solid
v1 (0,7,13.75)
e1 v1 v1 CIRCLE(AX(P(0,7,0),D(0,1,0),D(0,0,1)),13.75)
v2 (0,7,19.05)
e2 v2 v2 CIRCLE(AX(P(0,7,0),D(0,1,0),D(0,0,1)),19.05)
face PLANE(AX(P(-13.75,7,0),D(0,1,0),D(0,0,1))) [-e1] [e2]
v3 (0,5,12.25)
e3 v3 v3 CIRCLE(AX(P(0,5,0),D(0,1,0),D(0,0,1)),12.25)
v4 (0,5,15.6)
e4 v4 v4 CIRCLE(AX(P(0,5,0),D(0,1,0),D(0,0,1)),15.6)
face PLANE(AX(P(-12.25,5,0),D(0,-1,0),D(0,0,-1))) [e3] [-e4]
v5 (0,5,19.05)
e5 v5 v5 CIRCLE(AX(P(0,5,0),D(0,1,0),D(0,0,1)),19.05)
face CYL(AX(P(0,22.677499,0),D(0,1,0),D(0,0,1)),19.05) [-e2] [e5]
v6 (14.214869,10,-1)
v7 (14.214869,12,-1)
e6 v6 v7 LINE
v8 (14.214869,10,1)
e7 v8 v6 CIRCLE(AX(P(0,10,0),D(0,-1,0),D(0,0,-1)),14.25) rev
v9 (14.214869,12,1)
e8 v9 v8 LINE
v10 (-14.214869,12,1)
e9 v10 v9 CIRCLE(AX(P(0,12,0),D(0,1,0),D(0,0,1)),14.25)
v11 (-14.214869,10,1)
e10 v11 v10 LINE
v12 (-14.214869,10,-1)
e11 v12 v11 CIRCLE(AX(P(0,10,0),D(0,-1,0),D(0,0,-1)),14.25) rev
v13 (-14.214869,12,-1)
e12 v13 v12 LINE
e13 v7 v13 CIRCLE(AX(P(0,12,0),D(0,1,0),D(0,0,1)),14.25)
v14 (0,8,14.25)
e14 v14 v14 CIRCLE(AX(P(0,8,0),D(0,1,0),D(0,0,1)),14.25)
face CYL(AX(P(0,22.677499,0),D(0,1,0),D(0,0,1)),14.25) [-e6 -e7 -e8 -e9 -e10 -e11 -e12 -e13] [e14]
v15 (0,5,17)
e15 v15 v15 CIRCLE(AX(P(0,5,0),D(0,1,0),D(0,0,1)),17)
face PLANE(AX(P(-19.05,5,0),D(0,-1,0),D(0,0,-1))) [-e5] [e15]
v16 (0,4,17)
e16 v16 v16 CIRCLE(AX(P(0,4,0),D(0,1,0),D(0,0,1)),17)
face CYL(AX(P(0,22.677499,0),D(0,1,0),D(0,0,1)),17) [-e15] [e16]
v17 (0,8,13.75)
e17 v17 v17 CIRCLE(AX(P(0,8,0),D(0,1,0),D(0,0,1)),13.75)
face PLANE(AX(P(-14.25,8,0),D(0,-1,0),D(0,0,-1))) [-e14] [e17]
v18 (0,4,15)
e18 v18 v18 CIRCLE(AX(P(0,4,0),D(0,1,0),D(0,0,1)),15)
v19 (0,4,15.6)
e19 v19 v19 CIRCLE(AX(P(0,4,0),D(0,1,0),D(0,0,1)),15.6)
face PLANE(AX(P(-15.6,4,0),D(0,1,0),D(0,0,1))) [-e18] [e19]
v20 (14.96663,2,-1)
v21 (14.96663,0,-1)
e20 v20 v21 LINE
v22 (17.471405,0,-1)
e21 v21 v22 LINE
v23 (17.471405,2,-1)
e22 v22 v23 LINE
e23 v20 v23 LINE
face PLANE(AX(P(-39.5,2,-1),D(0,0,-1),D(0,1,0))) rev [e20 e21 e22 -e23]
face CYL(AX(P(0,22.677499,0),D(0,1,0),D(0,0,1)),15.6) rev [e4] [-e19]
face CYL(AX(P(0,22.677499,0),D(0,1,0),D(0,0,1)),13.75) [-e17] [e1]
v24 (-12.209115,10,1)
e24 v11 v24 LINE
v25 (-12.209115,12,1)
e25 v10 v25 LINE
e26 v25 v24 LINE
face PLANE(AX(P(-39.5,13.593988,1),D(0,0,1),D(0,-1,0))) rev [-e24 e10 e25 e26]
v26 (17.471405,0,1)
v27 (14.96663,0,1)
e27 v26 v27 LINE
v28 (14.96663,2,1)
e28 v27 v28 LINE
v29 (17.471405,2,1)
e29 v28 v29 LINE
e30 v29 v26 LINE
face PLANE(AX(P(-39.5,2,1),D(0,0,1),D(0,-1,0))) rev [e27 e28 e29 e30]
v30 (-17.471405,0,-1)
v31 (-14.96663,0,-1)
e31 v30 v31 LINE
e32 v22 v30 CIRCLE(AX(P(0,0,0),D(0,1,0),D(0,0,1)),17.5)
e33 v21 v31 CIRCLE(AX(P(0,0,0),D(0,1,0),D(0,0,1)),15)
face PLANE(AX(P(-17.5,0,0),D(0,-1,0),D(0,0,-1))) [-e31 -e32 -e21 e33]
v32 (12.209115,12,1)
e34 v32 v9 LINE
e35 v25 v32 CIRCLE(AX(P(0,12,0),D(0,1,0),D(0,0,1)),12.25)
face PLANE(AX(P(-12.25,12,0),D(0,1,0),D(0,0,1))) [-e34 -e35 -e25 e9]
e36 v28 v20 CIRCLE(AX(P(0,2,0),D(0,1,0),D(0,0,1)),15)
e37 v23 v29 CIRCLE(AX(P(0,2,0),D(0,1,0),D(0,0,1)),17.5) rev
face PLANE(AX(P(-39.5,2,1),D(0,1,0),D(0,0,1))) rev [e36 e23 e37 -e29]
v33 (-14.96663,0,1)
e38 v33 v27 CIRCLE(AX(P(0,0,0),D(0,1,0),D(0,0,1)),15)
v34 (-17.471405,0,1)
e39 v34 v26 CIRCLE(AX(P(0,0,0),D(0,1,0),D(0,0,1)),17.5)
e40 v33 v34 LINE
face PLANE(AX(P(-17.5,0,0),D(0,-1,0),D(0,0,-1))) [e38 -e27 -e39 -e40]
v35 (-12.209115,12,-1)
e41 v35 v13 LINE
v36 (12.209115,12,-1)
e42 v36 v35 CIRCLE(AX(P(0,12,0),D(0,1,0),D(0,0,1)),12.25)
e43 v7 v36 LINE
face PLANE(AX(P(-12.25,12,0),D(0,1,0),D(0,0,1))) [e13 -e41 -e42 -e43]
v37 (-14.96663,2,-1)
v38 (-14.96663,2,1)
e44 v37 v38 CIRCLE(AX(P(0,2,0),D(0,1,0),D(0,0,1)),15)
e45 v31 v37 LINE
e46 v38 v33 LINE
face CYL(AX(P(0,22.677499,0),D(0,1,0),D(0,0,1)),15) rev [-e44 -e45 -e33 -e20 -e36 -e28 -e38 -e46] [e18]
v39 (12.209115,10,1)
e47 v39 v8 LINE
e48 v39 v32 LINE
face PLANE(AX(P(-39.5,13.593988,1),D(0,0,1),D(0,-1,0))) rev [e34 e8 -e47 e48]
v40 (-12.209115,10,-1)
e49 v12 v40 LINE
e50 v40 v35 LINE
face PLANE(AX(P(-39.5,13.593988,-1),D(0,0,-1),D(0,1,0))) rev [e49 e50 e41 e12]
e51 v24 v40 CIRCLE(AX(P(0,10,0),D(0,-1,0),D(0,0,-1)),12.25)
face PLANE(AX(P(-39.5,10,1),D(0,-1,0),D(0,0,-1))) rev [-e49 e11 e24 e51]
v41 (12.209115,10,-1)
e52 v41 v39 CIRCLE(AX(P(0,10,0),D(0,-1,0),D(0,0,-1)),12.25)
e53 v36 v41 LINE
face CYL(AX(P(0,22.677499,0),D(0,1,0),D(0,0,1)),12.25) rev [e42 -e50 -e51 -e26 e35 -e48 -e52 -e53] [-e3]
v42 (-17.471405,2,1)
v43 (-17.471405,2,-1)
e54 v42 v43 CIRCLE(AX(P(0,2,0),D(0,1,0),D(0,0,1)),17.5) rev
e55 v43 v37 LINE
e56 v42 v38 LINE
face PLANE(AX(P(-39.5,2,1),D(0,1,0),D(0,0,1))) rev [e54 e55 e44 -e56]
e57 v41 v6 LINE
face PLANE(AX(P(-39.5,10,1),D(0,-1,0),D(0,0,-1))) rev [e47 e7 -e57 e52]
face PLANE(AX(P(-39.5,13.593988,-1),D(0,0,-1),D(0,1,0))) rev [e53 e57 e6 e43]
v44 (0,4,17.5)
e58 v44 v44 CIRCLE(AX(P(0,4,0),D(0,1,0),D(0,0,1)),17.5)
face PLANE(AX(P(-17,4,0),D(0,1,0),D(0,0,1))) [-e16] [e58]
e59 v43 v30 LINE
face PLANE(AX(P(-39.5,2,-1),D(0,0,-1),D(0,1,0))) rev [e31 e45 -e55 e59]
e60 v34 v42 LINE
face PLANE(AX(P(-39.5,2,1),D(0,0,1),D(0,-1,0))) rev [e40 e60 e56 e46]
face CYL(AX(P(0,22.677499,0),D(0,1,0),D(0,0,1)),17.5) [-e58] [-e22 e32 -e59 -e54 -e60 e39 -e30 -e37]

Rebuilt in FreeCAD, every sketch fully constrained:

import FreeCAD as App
import Part
import Sketcher
from FreeCAD import Vector

doc = App.newDocument("Part")
body = doc.addObject("PartDesign::Body", "Body")

# Sketch on XY plane
sketch1 = body.newObject("Sketcher::SketchObject", "Sketch")
sketch1.AttachmentSupport = (doc.getObject("XY_Plane"), [""])
sketch1.MapMode = "FlatFace"
sketch1.addGeometry(Part.LineSegment(Vector(-12.25, 12, 0), Vector(-14.25, 12, 0)), False)
sketch1.addGeometry(Part.LineSegment(Vector(-14.25, 12, 0), Vector(-14.25, 8, 0)), False)
sketch1.addGeometry(Part.LineSegment(Vector(-14.25, 8, 0), Vector(-13.75, 8, 0)), False)
sketch1.addGeometry(Part.LineSegment(Vector(-13.75, 8, 0), Vector(-13.75, 7, 0)), False)
sketch1.addGeometry(Part.LineSegment(Vector(-13.75, 7, 0), Vector(-19.05, 7, 0)), False)
sketch1.addGeometry(Part.LineSegment(Vector(-19.05, 7, 0), Vector(-19.05, 5, 0)), False)
sketch1.addGeometry(Part.LineSegment(Vector(-19.05, 5, 0), Vector(-17, 5, 0)), False)
sketch1.addGeometry(Part.LineSegment(Vector(-17, 5, 0), Vector(-17, 4, 0)), False)
sketch1.addGeometry(Part.LineSegment(Vector(-17, 4, 0), Vector(-17.5, 4, 0)), False)
sketch1.addGeometry(Part.LineSegment(Vector(-17.5, 4, 0), Vector(-17.5, 0, 0)), False)
sketch1.addGeometry(Part.LineSegment(Vector(-17.5, 0, 0), Vector(-15, 0, 0)), False)
sketch1.addGeometry(Part.LineSegment(Vector(-15, 0, 0), Vector(-15, 4, 0)), False)
sketch1.addGeometry(Part.LineSegment(Vector(-15, 4, 0), Vector(-15.6, 4, 0)), False)
sketch1.addGeometry(Part.LineSegment(Vector(-15.6, 4, 0), Vector(-15.6, 5, 0)), False)
sketch1.addGeometry(Part.LineSegment(Vector(-15.6, 5, 0), Vector(-12.25, 5, 0)), False)
sketch1.addGeometry(Part.LineSegment(Vector(-12.25, 5, 0), Vector(-12.25, 12, 0)), False)
sketch1.addConstraint(Sketcher.Constraint("Coincident", 0, 2, 1, 1))
sketch1.addConstraint(Sketcher.Constraint("Coincident", 1, 2, 2, 1))
sketch1.addConstraint(Sketcher.Constraint("Coincident", 2, 2, 3, 1))
sketch1.addConstraint(Sketcher.Constraint("Coincident", 3, 2, 4, 1))
sketch1.addConstraint(Sketcher.Constraint("Coincident", 4, 2, 5, 1))
sketch1.addConstraint(Sketcher.Constraint("Coincident", 5, 2, 6, 1))
sketch1.addConstraint(Sketcher.Constraint("Coincident", 6, 2, 7, 1))
sketch1.addConstraint(Sketcher.Constraint("Coincident", 7, 2, 8, 1))
sketch1.addConstraint(Sketcher.Constraint("Coincident", 8, 2, 9, 1))
sketch1.addConstraint(Sketcher.Constraint("Coincident", 9, 2, 10, 1))
sketch1.addConstraint(Sketcher.Constraint("Coincident", 10, 2, 11, 1))
sketch1.addConstraint(Sketcher.Constraint("Coincident", 11, 2, 12, 1))
sketch1.addConstraint(Sketcher.Constraint("Coincident", 12, 2, 13, 1))
sketch1.addConstraint(Sketcher.Constraint("Coincident", 13, 2, 14, 1))
sketch1.addConstraint(Sketcher.Constraint("Coincident", 14, 2, 15, 1))
sketch1.addConstraint(Sketcher.Constraint("Coincident", 15, 2, 0, 1))
sketch1.addConstraint(Sketcher.Constraint("Horizontal", 0))
sketch1.addConstraint(Sketcher.Constraint("Vertical", 1))
sketch1.addConstraint(Sketcher.Constraint("Horizontal", 2))
sketch1.addConstraint(Sketcher.Constraint("Vertical", 3))
sketch1.addConstraint(Sketcher.Constraint("Horizontal", 4))
sketch1.addConstraint(Sketcher.Constraint("Vertical", 5))
sketch1.addConstraint(Sketcher.Constraint("Horizontal", 6))
sketch1.addConstraint(Sketcher.Constraint("Vertical", 7))
sketch1.addConstraint(Sketcher.Constraint("Horizontal", 8))
sketch1.addConstraint(Sketcher.Constraint("Vertical", 9))
sketch1.addConstraint(Sketcher.Constraint("Horizontal", 10))
sketch1.addConstraint(Sketcher.Constraint("Vertical", 11))
sketch1.addConstraint(Sketcher.Constraint("Horizontal", 12))
sketch1.addConstraint(Sketcher.Constraint("Vertical", 13))
sketch1.addConstraint(Sketcher.Constraint("Horizontal", 14))
sketch1.addConstraint(Sketcher.Constraint("Vertical", 15))
sketch1.addConstraint(Sketcher.Constraint("PointOnObject", 9, 2, -1))
sketch1.addConstraint(Sketcher.Constraint("Horizontal", 8, 2, 11, 2))
sketch1.addConstraint(Sketcher.Constraint("Horizontal", 6, 2, 13, 2))
sketch1.addConstraint(Sketcher.Constraint("Equal", 2, 8))
sketch1.addConstraint(Sketcher.Constraint("Equal", 0, 5))
sketch1.addConstraint(Sketcher.Constraint("Equal", 3, 7))
sketch1.addConstraint(Sketcher.Constraint("Equal", 1, 9))
sketch1.addConstraint(Sketcher.Constraint("DistanceX", 0, 2, 0, 1, 2.0))
sketch1.addConstraint(Sketcher.Constraint("DistanceY", 1, 2, 1, 1, 4.0))
sketch1.addConstraint(Sketcher.Constraint("DistanceY", 3, 2, 3, 1, 1.0))
sketch1.addConstraint(Sketcher.Constraint("DistanceX", 2, 1, 2, 2, 0.5))
sketch1.addConstraint(Sketcher.Constraint("DistanceX", 4, 2, 4, 1, 5.3))
sketch1.addConstraint(Sketcher.Constraint("DistanceX", 10, 1, 10, 2, 2.5))
sketch1.addConstraint(Sketcher.Constraint("DistanceX", 12, 2, 12, 1, 0.6))
sketch1.addConstraint(Sketcher.Constraint("DistanceX", 6, 2, -1, 1, 17.0))
sketch1.addConstraint(Sketcher.Constraint("DistanceX", 6, 1, 6, 2, 2.05))
revolution = body.newObject("PartDesign::Revolution", "Revolution")
revolution.Profile = sketch1
revolution.ReferenceAxis = (sketch1, ["V_Axis"])
revolution.Angle = 360

# Sketch on YZ plane
sketch2 = body.newObject("Sketcher::SketchObject", "Sketch001")
sketch2.AttachmentSupport = (doc.getObject("YZ_Plane"), [""])
sketch2.MapMode = "FlatFace"
sketch2.addGeometry(Part.LineSegment(Vector(13.593988, 1, 0), Vector(10, 1, 0)), False)
sketch2.addGeometry(Part.LineSegment(Vector(10, 1, 0), Vector(10, -1, 0)), False)
sketch2.addGeometry(Part.LineSegment(Vector(10, -1, 0), Vector(13.593988, -1, 0)), False)
sketch2.addGeometry(Part.LineSegment(Vector(13.593988, -1, 0), Vector(13.593988, 1, 0)), False)
sketch2.addGeometry(Part.LineSegment(Vector(2, 1, 0), Vector(-4.667892, 1, 0)), False)
sketch2.addGeometry(Part.LineSegment(Vector(-4.667892, 1, 0), Vector(-4.667892, -1, 0)), False)
sketch2.addGeometry(Part.LineSegment(Vector(-4.667892, -1, 0), Vector(2, -1, 0)), False)
sketch2.addGeometry(Part.LineSegment(Vector(2, -1, 0), Vector(2, 1, 0)), False)
sketch2.addConstraint(Sketcher.Constraint("Coincident", 0, 2, 1, 1))
sketch2.addConstraint(Sketcher.Constraint("Coincident", 1, 2, 2, 1))
sketch2.addConstraint(Sketcher.Constraint("Coincident", 2, 2, 3, 1))
sketch2.addConstraint(Sketcher.Constraint("Coincident", 3, 2, 0, 1))
sketch2.addConstraint(Sketcher.Constraint("Coincident", 4, 2, 5, 1))
sketch2.addConstraint(Sketcher.Constraint("Coincident", 5, 2, 6, 1))
sketch2.addConstraint(Sketcher.Constraint("Coincident", 6, 2, 7, 1))
sketch2.addConstraint(Sketcher.Constraint("Coincident", 7, 2, 4, 1))
sketch2.addConstraint(Sketcher.Constraint("Horizontal", 0))
sketch2.addConstraint(Sketcher.Constraint("Vertical", 1))
sketch2.addConstraint(Sketcher.Constraint("Horizontal", 2))
sketch2.addConstraint(Sketcher.Constraint("Vertical", 3))
sketch2.addConstraint(Sketcher.Constraint("Horizontal", 4))
sketch2.addConstraint(Sketcher.Constraint("Vertical", 5))
sketch2.addConstraint(Sketcher.Constraint("Horizontal", 6))
sketch2.addConstraint(Sketcher.Constraint("Vertical", 7))
sketch2.addConstraint(Sketcher.Constraint("Horizontal", 3, 2, 4, 2))
sketch2.addConstraint(Sketcher.Constraint("Horizontal", 2, 2, 5, 2))
sketch2.addConstraint(Sketcher.Constraint("DistanceY", 1, 2, 1, 1, 2.0))
sketch2.addConstraint(Sketcher.Constraint("DistanceX", -1, 1, 0, 2, 10.0))
sketch2.addConstraint(Sketcher.Constraint("DistanceY", -1, 1, 0, 2, 1.0))
sketch2.addConstraint(Sketcher.Constraint("DistanceX", -1, 1, 6, 2, 2.0))
sketch2.addConstraint(Sketcher.Constraint("DistanceX", 0, 2, 0, 1, 3.593988))
sketch2.addConstraint(Sketcher.Constraint("DistanceX", 4, 2, 4, 1, 6.667892))
pocket1 = body.newObject("PartDesign::Pocket", "Pocket")
pocket1.Profile = sketch2
pocket1.Length = 79
pocket1.Midplane = True

doc.recompute()
